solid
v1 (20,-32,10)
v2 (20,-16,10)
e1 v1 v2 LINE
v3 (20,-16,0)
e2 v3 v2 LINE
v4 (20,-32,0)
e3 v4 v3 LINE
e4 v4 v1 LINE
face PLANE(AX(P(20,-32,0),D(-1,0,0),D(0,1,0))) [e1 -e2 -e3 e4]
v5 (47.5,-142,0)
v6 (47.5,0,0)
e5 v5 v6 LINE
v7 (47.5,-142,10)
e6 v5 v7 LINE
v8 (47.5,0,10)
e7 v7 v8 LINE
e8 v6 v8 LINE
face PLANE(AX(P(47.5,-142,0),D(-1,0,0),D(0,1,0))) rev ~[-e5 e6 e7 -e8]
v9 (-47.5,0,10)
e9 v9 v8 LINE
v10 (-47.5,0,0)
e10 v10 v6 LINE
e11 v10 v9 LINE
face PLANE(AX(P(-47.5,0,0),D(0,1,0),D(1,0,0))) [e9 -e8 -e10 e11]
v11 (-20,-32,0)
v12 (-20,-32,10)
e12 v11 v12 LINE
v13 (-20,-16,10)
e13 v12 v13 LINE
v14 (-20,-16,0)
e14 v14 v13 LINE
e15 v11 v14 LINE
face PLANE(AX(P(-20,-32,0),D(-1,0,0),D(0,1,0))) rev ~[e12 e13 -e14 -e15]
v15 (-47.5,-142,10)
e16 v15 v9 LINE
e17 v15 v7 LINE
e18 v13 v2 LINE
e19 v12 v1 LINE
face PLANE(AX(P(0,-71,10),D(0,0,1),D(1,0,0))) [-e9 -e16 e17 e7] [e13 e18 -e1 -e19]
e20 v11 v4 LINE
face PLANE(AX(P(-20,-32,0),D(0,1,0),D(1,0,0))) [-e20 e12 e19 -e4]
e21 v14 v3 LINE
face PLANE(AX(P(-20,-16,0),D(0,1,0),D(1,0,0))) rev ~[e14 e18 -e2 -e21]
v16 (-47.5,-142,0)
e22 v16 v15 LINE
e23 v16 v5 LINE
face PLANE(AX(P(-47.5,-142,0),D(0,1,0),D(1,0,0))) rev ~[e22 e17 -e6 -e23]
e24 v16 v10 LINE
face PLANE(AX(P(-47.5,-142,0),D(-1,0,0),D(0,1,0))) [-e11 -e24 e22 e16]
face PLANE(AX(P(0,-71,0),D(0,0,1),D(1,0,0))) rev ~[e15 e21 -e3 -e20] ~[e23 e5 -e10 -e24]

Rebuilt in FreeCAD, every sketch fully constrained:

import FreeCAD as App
import Part
import Sketcher

V = App.Vector
Q = App.Units.Quantity


def add_polygon(sketch, points):
    """Adds a closed chain of lines whose ends are joined by coincident constraints."""
    first, n = sketch.GeometryCount, len(points)
    for a, b in zip(points, points[1:] + points[:1]):
        sketch.addGeometry(Part.LineSegment(App.Vector(*a, 0), App.Vector(*b, 0)), False)
    for i in range(n):
        sketch.addConstraint(Sketcher.Constraint("Coincident", first + i, 2, first + (i + 1) % n, 1))

doc = App.newDocument("Part")
body = doc.addObject("PartDesign::Body", "Body")

# Sketch on XY plane
sketch1 = body.newObject("Sketcher::SketchObject", "Sketch")
sketch1.AttachmentSupport = (doc.getObject("XY_Plane"), [""])
sketch1.MapMode = "FlatFace"
add_polygon(sketch1, [(-48, 0), (-48, -142), (48, -142), (48, 0)])  # lines 0-3
add_polygon(sketch1, [(20, -32), (-20, -32), (-20, -16), (20, -16)])  # lines 4-7
sketch1.addConstraint(Sketcher.Constraint("Vertical", 0))
sketch1.addConstraint(Sketcher.Constraint("Horizontal", 1))
sketch1.addConstraint(Sketcher.Constraint("Vertical", 2))
sketch1.addConstraint(Sketcher.Constraint("Horizontal", 3))
sketch1.addConstraint(Sketcher.Constraint("Horizontal", 4))
sketch1.addConstraint(Sketcher.Constraint("Vertical", 5))
sketch1.addConstraint(Sketcher.Constraint("Horizontal", 6))
sketch1.addConstraint(Sketcher.Constraint("Vertical", 7))
sketch1.addConstraint(Sketcher.Constraint("Symmetric", 2, 2, 3, 2, -1, 1))
sketch1.addConstraint(Sketcher.Constraint("DistanceX", 1, 1, 1, 2, Q("95 mm")))
sketch1.addConstraint(Sketcher.Constraint("DistanceX", 4, 2, 4, 1, Q("40 mm")))
sketch1.addConstraint(Sketcher.Constraint("DistanceY", 0, 2, 0, 1, Q("142 mm")))
sketch1.addConstraint(Sketcher.Constraint("DistanceY", 5, 1, 5, 2, Q("16 mm")))
sketch1.addConstraint(Sketcher.Constraint("DistanceX", 4, 2, -1, 1, Q("20 mm")))
sketch1.addConstraint(Sketcher.Constraint("DistanceY", 4, 2, -1, 1, Q("32 mm")))
pad1 = body.newObject("PartDesign::Pad", "Pad")
pad1.Profile = sketch1
pad1.Length = 10

doc.recompute()
